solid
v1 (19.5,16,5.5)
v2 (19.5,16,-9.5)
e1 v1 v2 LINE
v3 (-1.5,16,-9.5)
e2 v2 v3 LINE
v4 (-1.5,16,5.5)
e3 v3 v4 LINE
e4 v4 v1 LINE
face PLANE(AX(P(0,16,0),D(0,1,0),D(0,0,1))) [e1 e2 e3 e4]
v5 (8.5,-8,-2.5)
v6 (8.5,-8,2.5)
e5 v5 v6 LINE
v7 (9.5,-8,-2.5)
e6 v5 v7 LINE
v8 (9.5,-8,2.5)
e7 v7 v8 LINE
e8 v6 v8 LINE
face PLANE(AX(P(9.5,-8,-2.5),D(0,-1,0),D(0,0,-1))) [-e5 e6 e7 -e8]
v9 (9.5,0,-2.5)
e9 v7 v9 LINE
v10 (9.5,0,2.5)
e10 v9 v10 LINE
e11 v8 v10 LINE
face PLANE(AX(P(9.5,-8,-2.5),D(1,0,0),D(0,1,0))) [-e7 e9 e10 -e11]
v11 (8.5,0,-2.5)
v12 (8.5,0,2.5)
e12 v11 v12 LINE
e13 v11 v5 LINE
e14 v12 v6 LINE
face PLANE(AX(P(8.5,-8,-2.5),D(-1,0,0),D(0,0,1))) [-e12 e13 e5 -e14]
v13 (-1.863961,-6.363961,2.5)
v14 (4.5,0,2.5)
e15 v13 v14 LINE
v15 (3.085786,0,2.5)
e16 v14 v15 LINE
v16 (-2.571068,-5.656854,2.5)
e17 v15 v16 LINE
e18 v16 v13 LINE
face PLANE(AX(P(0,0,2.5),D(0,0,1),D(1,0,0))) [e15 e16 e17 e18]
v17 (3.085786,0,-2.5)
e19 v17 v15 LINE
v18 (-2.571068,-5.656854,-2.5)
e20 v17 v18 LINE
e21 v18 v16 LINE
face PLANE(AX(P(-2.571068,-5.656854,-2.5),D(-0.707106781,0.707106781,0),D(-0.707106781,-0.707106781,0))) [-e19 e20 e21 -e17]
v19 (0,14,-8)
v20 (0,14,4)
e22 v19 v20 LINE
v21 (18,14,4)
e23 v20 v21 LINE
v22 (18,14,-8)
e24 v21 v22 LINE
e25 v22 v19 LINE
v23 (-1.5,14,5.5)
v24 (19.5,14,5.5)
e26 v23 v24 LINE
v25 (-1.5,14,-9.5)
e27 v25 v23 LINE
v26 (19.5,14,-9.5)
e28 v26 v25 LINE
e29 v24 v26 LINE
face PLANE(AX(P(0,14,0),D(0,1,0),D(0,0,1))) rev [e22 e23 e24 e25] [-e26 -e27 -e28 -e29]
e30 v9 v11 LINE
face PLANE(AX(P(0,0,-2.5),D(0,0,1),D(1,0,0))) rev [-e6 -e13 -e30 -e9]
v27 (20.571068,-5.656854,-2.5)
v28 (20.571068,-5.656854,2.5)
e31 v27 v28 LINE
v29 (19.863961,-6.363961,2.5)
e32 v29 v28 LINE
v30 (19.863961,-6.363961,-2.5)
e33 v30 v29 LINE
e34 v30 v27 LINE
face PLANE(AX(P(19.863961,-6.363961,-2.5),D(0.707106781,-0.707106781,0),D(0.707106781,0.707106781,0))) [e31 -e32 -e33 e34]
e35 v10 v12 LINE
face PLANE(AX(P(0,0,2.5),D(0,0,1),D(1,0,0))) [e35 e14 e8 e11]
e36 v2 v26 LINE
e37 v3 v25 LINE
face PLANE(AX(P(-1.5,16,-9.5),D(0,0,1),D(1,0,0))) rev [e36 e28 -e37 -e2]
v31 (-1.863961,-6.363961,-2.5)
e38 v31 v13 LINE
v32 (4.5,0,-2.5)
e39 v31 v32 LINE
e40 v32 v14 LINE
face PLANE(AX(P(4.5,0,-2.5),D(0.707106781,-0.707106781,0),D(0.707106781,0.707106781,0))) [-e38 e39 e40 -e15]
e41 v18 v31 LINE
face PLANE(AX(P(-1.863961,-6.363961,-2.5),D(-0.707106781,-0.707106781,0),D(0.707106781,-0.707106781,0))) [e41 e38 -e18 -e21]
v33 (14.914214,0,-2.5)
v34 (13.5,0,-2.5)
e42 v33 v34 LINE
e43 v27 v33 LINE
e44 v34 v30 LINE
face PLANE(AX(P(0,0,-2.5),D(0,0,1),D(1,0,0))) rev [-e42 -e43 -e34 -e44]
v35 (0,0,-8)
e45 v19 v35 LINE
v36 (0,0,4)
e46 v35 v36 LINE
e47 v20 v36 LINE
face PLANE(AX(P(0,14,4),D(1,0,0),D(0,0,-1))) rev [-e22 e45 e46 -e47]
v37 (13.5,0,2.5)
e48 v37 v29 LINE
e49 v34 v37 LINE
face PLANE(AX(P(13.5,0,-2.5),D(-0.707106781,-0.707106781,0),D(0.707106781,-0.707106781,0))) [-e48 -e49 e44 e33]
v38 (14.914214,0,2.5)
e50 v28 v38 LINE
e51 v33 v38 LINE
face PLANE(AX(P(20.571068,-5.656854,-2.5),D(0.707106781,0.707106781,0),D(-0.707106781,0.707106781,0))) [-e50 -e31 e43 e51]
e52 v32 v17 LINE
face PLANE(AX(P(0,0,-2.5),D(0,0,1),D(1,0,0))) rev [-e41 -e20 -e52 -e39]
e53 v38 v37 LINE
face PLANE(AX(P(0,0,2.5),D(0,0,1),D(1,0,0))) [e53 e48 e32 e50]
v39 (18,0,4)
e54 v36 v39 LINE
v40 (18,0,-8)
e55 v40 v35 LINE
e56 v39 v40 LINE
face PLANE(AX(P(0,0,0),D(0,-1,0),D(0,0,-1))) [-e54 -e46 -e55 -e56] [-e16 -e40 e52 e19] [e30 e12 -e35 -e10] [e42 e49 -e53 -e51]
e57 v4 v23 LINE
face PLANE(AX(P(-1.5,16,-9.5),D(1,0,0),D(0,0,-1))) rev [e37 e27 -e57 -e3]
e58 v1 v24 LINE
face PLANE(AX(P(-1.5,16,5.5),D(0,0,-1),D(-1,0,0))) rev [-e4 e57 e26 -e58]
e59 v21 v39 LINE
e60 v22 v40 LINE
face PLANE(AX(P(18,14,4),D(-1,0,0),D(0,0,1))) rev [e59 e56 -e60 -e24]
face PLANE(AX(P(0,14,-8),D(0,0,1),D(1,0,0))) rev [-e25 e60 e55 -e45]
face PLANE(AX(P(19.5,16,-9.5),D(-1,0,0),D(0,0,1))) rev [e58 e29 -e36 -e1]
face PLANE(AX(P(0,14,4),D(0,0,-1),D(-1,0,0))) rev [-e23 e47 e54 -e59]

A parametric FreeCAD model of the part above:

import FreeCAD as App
import Part
import Sketcher

V = App.Vector


def add_polygon(sketch, points):
    """Adds a closed chain of lines whose ends are joined by coincident constraints."""
    first, n = sketch.GeometryCount, len(points)
    for a, b in zip(points, points[1:] + points[:1]):
        sketch.addGeometry(Part.LineSegment(App.Vector(*a, 0), App.Vector(*b, 0)), False)
    for i in range(n):
        sketch.addConstraint(Sketcher.Constraint("Coincident", first + i, 2, first + (i + 1) % n, 1))

doc = App.newDocument("Part")
body = doc.addObject("PartDesign::Body", "Body")

sketch1 = doc.addObject("Sketcher::SketchObject", "Sketch")
body.addObject(sketch1)
sketch1.AttachmentSupport = (doc.XZ_Plane, [""])
sketch1.MapMode = "FlatFace"
add_polygon(sketch1, [(0, -8), (0, 4), (18, 4), (18, -8)])
sketch1.addConstraint(Sketcher.Constraint("Vertical", 0))
sketch1.addConstraint(Sketcher.Constraint("Horizontal", 1))
sketch1.addConstraint(Sketcher.Constraint("Vertical", 2))
sketch1.addConstraint(Sketcher.Constraint("Horizontal", 3))
sketch1.addConstraint(Sketcher.Constraint("PointOnObject", 0, 2, -2))
sketch1.addConstraint(Sketcher.Constraint("DistanceX", 1, 1, 1, 2, 18.0))
sketch1.addConstraint(Sketcher.Constraint("DistanceY", 0, 1, 0, 2, 12.0))
sketch1.addConstraint(Sketcher.Constraint("DistanceY", -1, 1, 0, 2, 4.0))
pad1 = doc.addObject("PartDesign::Pad", "Pad")
body.addObject(pad1)
pad1.Profile = sketch1
pad1.Length = 14
pad1.Reversed = True

sketch2 = doc.addObject("Sketcher::SketchObject", "Sketch001")
body.addObject(sketch2)
sketch2.AttachmentSupport = (doc.XZ_Plane, [""])
sketch2.MapMode = "FlatFace"
sketch2.AttachmentOffset = App.Placement(V(0, 0, -14), App.Rotation())
add_polygon(sketch2, [(-1.5, -9.5), (-1.5, 5.5), (19.5, 5.5), (19.5, -9.5)])
sketch2.addConstraint(Sketcher.Constraint("Vertical", 0))
sketch2.addConstraint(Sketcher.Constraint("Horizontal", 1))
sketch2.addConstraint(Sketcher.Constraint("Vertical", 2))
sketch2.addConstraint(Sketcher.Constraint("Horizontal", 3))
sketch2.addConstraint(Sketcher.Constraint("DistanceX", 1, 1, 1, 2, 21.0))
sketch2.addConstraint(Sketcher.Constraint("DistanceY", 0, 1, 0, 2, 15.0))
sketch2.addConstraint(Sketcher.Constraint("DistanceX", 0, 2, -1, 1, 1.5))
sketch2.addConstraint(Sketcher.Constraint("DistanceY", -1, 1, 0, 2, 5.5))
pad2 = doc.addObject("PartDesign::Pad", "Pad001")
body.addObject(pad2)
pad2.Profile = sketch2
pad2.Length = 2
pad2.Reversed = True

sketch3 = doc.addObject("Sketcher::SketchObject", "Sketch002")
body.addObject(sketch3)
sketch3.AttachmentSupport = (doc.XY_Plane, [""])
sketch3.MapMode = "FlatFace"
add_polygon(sketch3, [(8.5, 0), (8.5, -8), (9.5, -8), (9.5, 0)])
add_polygon(sketch3, [(13.5, 0), (19.863961, -6.363961), (20.571068, -5.656854), (14.914214, 0)])
add_polygon(sketch3, [(4.5, 0), (3.085786, 0), (-2.571068, -5.656854), (-1.863961, -6.363961)])
sketch3.addConstraint(Sketcher.Constraint("Vertical", 0))
sketch3.addConstraint(Sketcher.Constraint("Horizontal", 1))
sketch3.addConstraint(Sketcher.Constraint("Vertical", 2))
sketch3.addConstraint(Sketcher.Constraint("Horizontal", 3))
sketch3.addConstraint(Sketcher.Constraint("Horizontal", 7))
sketch3.addConstraint(Sketcher.Constraint("Horizontal", 8))
sketch3.addConstraint(Sketcher.Constraint("PointOnObject", 2, 2, -1))
sketch3.addConstraint(Sketcher.Constraint("PointOnObject", 6, 2, -1))
sketch3.addConstraint(Sketcher.Constraint("PointOnObject", 8, 2, -1))
sketch3.addConstraint(Sketcher.Constraint("Perpendicular", 4, 5))
sketch3.addConstraint(Sketcher.Constraint("Perpendicular", 5, 6))
sketch3.addConstraint(Sketcher.Constraint("Perpendicular", 6, 9))
sketch3.addConstraint(Sketcher.Constraint("Perpendicular", 9, 10))
sketch3.addConstraint(Sketcher.Constraint("Perpendicular", 10, 11))
sketch3.addConstraint(Sketcher.Constraint("Horizontal", 5, 2, 9, 2))
sketch3.addConstraint(Sketcher.Constraint("Horizontal", 4, 2, 10, 2))
sketch3.addConstraint(Sketcher.Constraint("Equal", 6, 9))
sketch3.addConstraint(Sketcher.Constraint("DistanceX", 1, 1, 1, 2, 1.0))
sketch3.addConstraint(Sketcher.Constraint("DistanceY", 0, 2, 0, 1, 8.0))
sketch3.addConstraint(Sketcher.Constraint("Distance", 4, 9.0))
sketch3.addConstraint(Sketcher.Constraint("Distance", 5, 1.0))
sketch3.addConstraint(Sketcher.Constraint("DistanceX", 2, 2, 7, 2, 4.0))
sketch3.addConstraint(Sketcher.Constraint("DistanceX", 11, 2, 3, 2, 4.0))
sketch3.addConstraint(Sketcher.Constraint("DistanceX", -1, 1, 0, 2, 8.5))
pad3 = doc.addObject("PartDesign::Pad", "Pad002")
body.addObject(pad3)
pad3.Profile = sketch3
pad3.Type = "TwoLengths"
pad3.Length = 2.5
pad3.Length2 = 2.5

doc.recompute()
